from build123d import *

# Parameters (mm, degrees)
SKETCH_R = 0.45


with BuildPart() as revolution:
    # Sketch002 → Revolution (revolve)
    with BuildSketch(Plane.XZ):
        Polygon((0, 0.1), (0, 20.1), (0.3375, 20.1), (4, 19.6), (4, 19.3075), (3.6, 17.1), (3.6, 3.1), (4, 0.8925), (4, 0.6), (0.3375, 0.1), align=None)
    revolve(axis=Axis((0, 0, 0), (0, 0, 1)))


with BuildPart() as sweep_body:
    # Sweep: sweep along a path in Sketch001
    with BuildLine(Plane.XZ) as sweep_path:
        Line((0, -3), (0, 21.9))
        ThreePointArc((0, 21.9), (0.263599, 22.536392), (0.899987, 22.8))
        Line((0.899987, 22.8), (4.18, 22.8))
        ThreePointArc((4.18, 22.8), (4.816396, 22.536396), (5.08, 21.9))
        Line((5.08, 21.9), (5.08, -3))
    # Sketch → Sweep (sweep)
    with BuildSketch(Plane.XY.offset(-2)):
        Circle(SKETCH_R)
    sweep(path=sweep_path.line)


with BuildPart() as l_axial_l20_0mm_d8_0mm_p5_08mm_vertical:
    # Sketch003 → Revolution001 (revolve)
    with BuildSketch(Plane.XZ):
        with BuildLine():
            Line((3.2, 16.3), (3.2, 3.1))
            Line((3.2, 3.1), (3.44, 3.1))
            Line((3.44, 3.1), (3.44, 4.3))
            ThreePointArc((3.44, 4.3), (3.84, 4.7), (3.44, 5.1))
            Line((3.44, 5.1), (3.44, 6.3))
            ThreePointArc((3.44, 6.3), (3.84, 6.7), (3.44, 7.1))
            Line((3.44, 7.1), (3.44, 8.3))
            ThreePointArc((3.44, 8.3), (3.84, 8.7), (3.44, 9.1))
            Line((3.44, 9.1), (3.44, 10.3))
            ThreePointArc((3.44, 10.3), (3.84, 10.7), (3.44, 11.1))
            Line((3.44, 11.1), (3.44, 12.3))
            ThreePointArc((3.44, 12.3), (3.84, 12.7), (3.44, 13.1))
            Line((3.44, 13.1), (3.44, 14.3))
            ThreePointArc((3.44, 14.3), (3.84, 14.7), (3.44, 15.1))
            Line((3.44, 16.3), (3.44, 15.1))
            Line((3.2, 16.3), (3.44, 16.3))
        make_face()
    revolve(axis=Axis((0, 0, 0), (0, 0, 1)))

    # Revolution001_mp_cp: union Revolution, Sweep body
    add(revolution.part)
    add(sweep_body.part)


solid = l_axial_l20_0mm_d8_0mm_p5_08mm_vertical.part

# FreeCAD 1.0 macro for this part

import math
import FreeCAD as App
import Part
import Sketcher
Q = App.Units.Quantity


def add_polygon(sketch, points):
    """Adds a closed chain of lines whose ends are joined by coincident constraints."""
    first, n = sketch.GeometryCount, len(points)
    for a, b in zip(points, points[1:] + points[:1]):
        sketch.addGeometry(Part.LineSegment(App.Vector(*a, 0), App.Vector(*b, 0)), False)
    for i in range(n):
        sketch.addConstraint(Sketcher.Constraint("Coincident", first + i, 2, first + (i + 1) % n, 1))

doc = App.newDocument("Part")
body = doc.addObject("PartDesign::Body", "Body")

# Sketch on XZ plane
sketch1 = body.newObject("Sketcher::SketchObject", "Sketch")
sketch1.AttachmentSupport = (doc.getObject("XZ_Plane"), [""])
sketch1.MapMode = "FlatFace"
add_polygon(sketch1, [(0, 20.1), (0, 0.1), (0.34, 0.1), (4, 0.6), (4, 0.89), (3.6, 3.1), (3.6, 17.1), (4, 19.31), (4, 19.6), (0.34, 20.1)])  # lines 0-9
sketch1.addConstraint([
    Sketcher.Constraint("Vertical", 0),
    Sketcher.Constraint("Horizontal", 1),
    Sketcher.Constraint("Vertical", 3),
    Sketcher.Constraint("Vertical", 5),
    Sketcher.Constraint("Vertical", 7),
    Sketcher.Constraint("Horizontal", 9),
    Sketcher.Constraint("PointOnObject", 0, 2, -2),
    Sketcher.Constraint("Vertical", 3, 2, 6, 2),
    Sketcher.Constraint("Vertical", 1, 2, 8, 2),
    Sketcher.Constraint("Equal", 3, 7),
    Sketcher.Constraint("Equal", 4, 6),
    Sketcher.Constraint("Equal", 2, 8),
    Sketcher.Constraint("DistanceY", 0, 2, 0, 1, Q("20 mm")),
    Sketcher.Constraint("DistanceY", 5, 1, 5, 2, Q("14 mm")),
    Sketcher.Constraint("DistanceX", -1, 1, 2, 2, Q("4 mm")),
    Sketcher.Constraint("DistanceY", 2, 2, 7, 2, Q("19 mm")),
    Sketcher.Constraint("DistanceY", -1, 1, 0, 2, Q("0.1 mm")),
    Sketcher.Constraint("DistanceX", -1, 1, 4, 2, Q("3.6 mm")),
    Sketcher.Constraint("DistanceX", 1, 1, 1, 2, Q("0.3375 mm")),
    Sketcher.Constraint("DistanceY", 3, 1, 3, 2, Q("0.2925 mm")),
])
revolution = body.newObject("PartDesign::Revolution", "Revolution")
revolution.Profile = sketch1
revolution.ReferenceAxis = (sketch1, ["V_Axis"])
revolution.Angle = 360
body2 = doc.addObject("PartDesign::Body", "Body001")

# Sketch on XY plane
sketch2 = body2.newObject("Sketcher::SketchObject", "Sketch001")
sketch2.AttachmentSupport = (doc.getObject("XY_Plane001"), [""])
sketch2.MapMode = "FlatFace"
sketch2.AttachmentOffset = App.Placement(App.Vector(0, 0, -2), App.Rotation())
sketch2.addGeometry(Part.Circle(App.Vector(0, 0, 0), App.Vector(0, 0, 1), 0.45), False)
sketch2.addConstraint([
    Sketcher.Constraint("Coincident", 0, 3, -1, 1),
    Sketcher.Constraint("Diameter", 0, Q("0.9 mm")),
])

# Sketch on XZ plane
sketch3 = body2.newObject("Sketcher::SketchObject", "Sketch002")
sketch3.AttachmentSupport = (doc.getObject("XZ_Plane001"), [""])
sketch3.MapMode = "FlatFace"
sketch3.addGeometry([
    Part.LineSegment(App.Vector(0, -3, 0), App.Vector(0, 21.9, 0)),  # 0
    Part.ArcOfCircle(Part.Circle(App.Vector(0.9, 21.9, 0), App.Vector(0, 0, 1), 0.9), math.radians(90), math.radians(180)),  # 1
    Part.LineSegment(App.Vector(0.9, 22.8, 0), App.Vector(4.2, 22.8, 0)),  # 2
    Part.ArcOfCircle(Part.Circle(App.Vector(4.2, 21.9, 0), App.Vector(0, 0, 1), 0.9), math.radians(0), math.radians(90)),  # 3
    Part.LineSegment(App.Vector(5.1, 21.9, 0), App.Vector(5.1, -3, 0)),  # 4
], False)
sketch3.addConstraint([
    Sketcher.Constraint("Tangent", 0, 2, 1, 2),
    Sketcher.Constraint("Coincident", 1, 1, 2, 1),
    Sketcher.Constraint("Tangent", 2, 2, 3, 2),
    Sketcher.Constraint("Tangent", 3, 1, 4, 1),
    Sketcher.Constraint("Vertical", 0),
    Sketcher.Constraint("Horizontal", 2),
    Sketcher.Constraint("Vertical", 4),
    Sketcher.Constraint("Equal", 1, 3),
    Sketcher.Constraint("PointOnObject", 0, 1, -2),
    Sketcher.Constraint("Horizontal", 0, 1, 4, 2),
    Sketcher.Constraint("Radius", 1, Q("0.899999 mm")),
    Sketcher.Constraint("DistanceY", 0, 1, 0, 2, Q("24.9 mm")),
    Sketcher.Constraint("DistanceY", 0, 1, -1, 1, Q("3 mm")),
    Sketcher.Constraint("DistanceX", -1, 1, 3, 3, Q("4.18 mm")),
    Sketcher.Constraint("DistanceX", 2, 1, 2, 2, Q("3.280013 mm")),
])
doc.recompute()

additivepipe = body2.newObject("PartDesign::AdditivePipe", "AdditivePipe")
additivepipe.Profile = sketch2
additivepipe.Spine = (sketch3, ["Edge1", "Edge2", "Edge3", "Edge4", "Edge5"])
body3 = doc.addObject("PartDesign::Body", "Body002")

# Sketch on XZ plane
sketch4 = body3.newObject("Sketcher::SketchObject", "Sketch003")
sketch4.AttachmentSupport = (doc.getObject("XZ_Plane002"), [""])
sketch4.MapMode = "FlatFace"
sketch4.addGeometry([
    Part.LineSegment(App.Vector(3.2, 16.3, 0), App.Vector(3.2, 3.1, 0)),  # 0
    Part.LineSegment(App.Vector(3.2, 3.1, 0), App.Vector(3.44, 3.1, 0)),  # 1
    Part.LineSegment(App.Vector(3.44, 3.1, 0), App.Vector(3.44, 4.3, 0)),  # 2
    Part.ArcOfCircle(Part.Circle(App.Vector(3.44, 4.7, 0), App.Vector(0, 0, 1), 0.4), math.radians(-90), math.radians(90)),  # 3
    Part.LineSegment(App.Vector(3.44, 5.1, 0), App.Vector(3.44, 6.3, 0)),  # 4
    Part.ArcOfCircle(Part.Circle(App.Vector(3.44, 6.7, 0), App.Vector(0, 0, 1), 0.4), math.radians(-90), math.radians(90)),  # 5
    Part.LineSegment(App.Vector(3.44, 7.1, 0), App.Vector(3.44, 8.3, 0)),  # 6
    Part.ArcOfCircle(Part.Circle(App.Vector(3.44, 8.7, 0), App.Vector(0, 0, 1), 0.4), math.radians(-90), math.radians(90)),  # 7
    Part.LineSegment(App.Vector(3.44, 9.1, 0), App.Vector(3.44, 10.3, 0)),  # 8
    Part.ArcOfCircle(Part.Circle(App.Vector(3.44, 10.7, 0), App.Vector(0, 0, 1), 0.4), math.radians(-90), math.radians(90)),  # 9
    Part.LineSegment(App.Vector(3.44, 11.1, 0), App.Vector(3.44, 12.3, 0)),  # 10
    Part.ArcOfCircle(Part.Circle(App.Vector(3.44, 12.7, 0), App.Vector(0, 0, 1), 0.4), math.radians(-90), math.radians(90)),  # 11
    Part.LineSegment(App.Vector(3.44, 13.1, 0), App.Vector(3.44, 14.3, 0)),  # 12
    Part.ArcOfCircle(Part.Circle(App.Vector(3.44, 14.7, 0), App.Vector(0, 0, 1), 0.4), math.radians(-90), math.radians(90)),  # 13
    Part.LineSegment(App.Vector(3.44, 15.1, 0), App.Vector(3.44, 16.3, 0)),  # 14
    Part.LineSegment(App.Vector(3.44, 16.3, 0), App.Vector(3.2, 16.3, 0)),  # 15
], False)
sketch4.addConstraint([
    Sketcher.Constraint("Coincident", 0, 2, 1, 1),
    Sketcher.Constraint("Coincident", 1, 2, 2, 1),
    Sketcher.Constraint("Coincident", 2, 2, 3, 1),
    Sketcher.Constraint("Coincident", 3, 2, 4, 1),
    Sketcher.Constraint("Coincident", 4, 2, 5, 1),
    Sketcher.Constraint("Coincident", 5, 2, 6, 1),
    Sketcher.Constraint("Coincident", 6, 2, 7, 1),
    Sketcher.Constraint("Coincident", 7, 2, 8, 1),
    Sketcher.Constraint("Coincident", 8, 2, 9, 1),
    Sketcher.Constraint("Coincident", 9, 2, 10, 1),
    Sketcher.Constraint("Coincident", 10, 2, 11, 1),
    Sketcher.Constraint("Coincident", 11, 2, 12, 1),
    Sketcher.Constraint("Coincident", 12, 2, 13, 1),
    Sketcher.Constraint("Coincident", 13, 2, 14, 1),
    Sketcher.Constraint("Coincident", 14, 2, 15, 1),
    Sketcher.Constraint("Coincident", 15, 2, 0, 1),
    Sketcher.Constraint("Vertical", 0),
    Sketcher.Constraint("Horizontal", 1),
    Sketcher.Constraint("Vertical", 2),
    Sketcher.Constraint("Vertical", 4),
    Sketcher.Constraint("Vertical", 6),
    Sketcher.Constraint("Vertical", 8),
    Sketcher.Constraint("Vertical", 10),
    Sketcher.Constraint("Vertical", 12),
    Sketcher.Constraint("Vertical", 14),
    Sketcher.Constraint("Horizontal", 15),
    Sketcher.Constraint("Equal", 3, 5),
    Sketcher.Constraint("Equal", 5, 7),
    Sketcher.Constraint("Equal", 7, 9),
    Sketcher.Constraint("Equal", 9, 11),
    Sketcher.Constraint("Equal", 11, 13),
    Sketcher.Constraint("Vertical", 3, 3, 5, 3),
    Sketcher.Constraint("Vertical", 5, 3, 7, 3),
    Sketcher.Constraint("Vertical", 7, 3, 9, 3),
    Sketcher.Constraint("Vertical", 9, 3, 11, 3),
    Sketcher.Constraint("Vertical", 11, 3, 13, 3),
    Sketcher.Constraint("Vertical", 13, 3, 1, 2),
    Sketcher.Constraint("Vertical", 2, 2, 3, 2),
    Sketcher.Constraint("Vertical", 4, 2, 5, 2),
    Sketcher.Constraint("Vertical", 6, 2, 7, 2),
    Sketcher.Constraint("Vertical", 8, 2, 9, 2),
    Sketcher.Constraint("Vertical", 10, 2, 11, 2),
    Sketcher.Constraint("Vertical", 12, 2, 13, 2),
    Sketcher.Constraint("Equal", 2, 4),
    Sketcher.Constraint("Equal", 4, 6),
    Sketcher.Constraint("Equal", 6, 8),
    Sketcher.Constraint("Equal", 8, 10),
    Sketcher.Constraint("Equal", 10, 12),
    Sketcher.Constraint("Equal", 12, 14),
    Sketcher.Constraint("Radius", 3, Q("0.4 mm")),
    Sketcher.Constraint("DistanceY", 0, 2, 0, 1, Q("13.2 mm")),
    Sketcher.Constraint("DistanceX", 1, 1, 1, 2, Q("0.24 mm")),
    Sketcher.Constraint("DistanceY", -1, 1, 3, 3, Q("4.7 mm")),
    Sketcher.Constraint("DistanceX", -1, 1, 0, 2, Q("3.2 mm")),
])
revolution2 = body3.newObject("PartDesign::Revolution", "Revolution001")
revolution2.Profile = sketch4
revolution2.ReferenceAxis = (sketch4, ["V_Axis"])
revolution2.Angle = 360
doc.recompute()

boolean = body3.newObject("PartDesign::Boolean", "Boolean")
boolean.Type = "Fuse"
boolean.addObjects([body])
doc.recompute()

boolean2 = body3.newObject("PartDesign::Boolean", "Boolean001")
boolean2.Type = "Fuse"
boolean2.addObjects([body2])

doc.recompute()
